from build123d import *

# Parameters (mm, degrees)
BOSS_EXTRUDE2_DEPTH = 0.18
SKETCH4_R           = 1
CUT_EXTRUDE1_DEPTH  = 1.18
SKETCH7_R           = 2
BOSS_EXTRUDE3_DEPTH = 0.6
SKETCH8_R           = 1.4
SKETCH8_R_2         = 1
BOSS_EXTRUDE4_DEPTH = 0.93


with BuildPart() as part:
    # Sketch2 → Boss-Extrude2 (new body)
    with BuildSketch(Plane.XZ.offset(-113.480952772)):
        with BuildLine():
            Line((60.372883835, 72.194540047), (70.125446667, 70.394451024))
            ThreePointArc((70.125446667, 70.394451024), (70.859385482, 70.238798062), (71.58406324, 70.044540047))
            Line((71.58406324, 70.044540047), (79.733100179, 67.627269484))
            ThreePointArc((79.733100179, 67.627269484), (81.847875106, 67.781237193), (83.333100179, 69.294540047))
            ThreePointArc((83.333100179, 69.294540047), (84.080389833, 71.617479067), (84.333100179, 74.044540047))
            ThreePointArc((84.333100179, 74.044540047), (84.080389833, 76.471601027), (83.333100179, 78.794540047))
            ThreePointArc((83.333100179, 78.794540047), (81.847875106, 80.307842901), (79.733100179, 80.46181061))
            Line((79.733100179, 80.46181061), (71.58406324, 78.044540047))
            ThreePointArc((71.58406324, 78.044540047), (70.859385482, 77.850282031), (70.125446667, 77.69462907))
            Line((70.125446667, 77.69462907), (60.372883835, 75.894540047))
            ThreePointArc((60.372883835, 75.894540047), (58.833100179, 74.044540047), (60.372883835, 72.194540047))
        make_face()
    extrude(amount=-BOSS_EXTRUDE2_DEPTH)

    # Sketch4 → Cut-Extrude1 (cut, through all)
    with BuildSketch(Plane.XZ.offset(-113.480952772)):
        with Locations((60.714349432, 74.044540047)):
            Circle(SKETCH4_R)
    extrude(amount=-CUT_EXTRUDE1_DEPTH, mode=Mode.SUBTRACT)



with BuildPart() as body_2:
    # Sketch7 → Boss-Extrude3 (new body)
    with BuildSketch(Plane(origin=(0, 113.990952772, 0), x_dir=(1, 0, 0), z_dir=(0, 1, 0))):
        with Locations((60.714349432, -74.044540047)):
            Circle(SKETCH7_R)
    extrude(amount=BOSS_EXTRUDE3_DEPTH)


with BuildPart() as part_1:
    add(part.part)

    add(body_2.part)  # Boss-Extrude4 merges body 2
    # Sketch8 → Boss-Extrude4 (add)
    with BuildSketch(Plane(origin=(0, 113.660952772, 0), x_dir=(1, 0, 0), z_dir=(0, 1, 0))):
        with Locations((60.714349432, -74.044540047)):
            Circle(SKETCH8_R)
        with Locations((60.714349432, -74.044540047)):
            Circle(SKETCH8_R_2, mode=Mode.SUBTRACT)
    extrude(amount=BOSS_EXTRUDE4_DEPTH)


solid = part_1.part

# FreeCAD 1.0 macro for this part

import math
import FreeCAD as App
import Part
import Sketcher

doc = App.newDocument("Part")
params = doc.addObject("Spreadsheet::Sheet", "Params")
for row, (alias, value) in enumerate([
    ("sketch1_length", "8.5 mm"),
    ("sketch1_length2", "8.5 mm"),
    ("pad1_length", "0.18 mm"),
    ("sketch2_diameter", "2 mm"),
    ("sketch3_diameter", "4 mm"),
    ("pad2_length", "0.6 mm"),
    ("sketch4_diameter", "2 mm"),
    ("sketch4_diameter2", "2.8 mm"),
    ("pad3_length", "0.93 mm"),
], start=1):
    params.set(f"A{row}", alias)
    params.set(f"B{row}", "=" + value)
    params.setAlias(f"B{row}", alias)

body = doc.addObject("PartDesign::Body", "Body")

# Sketch on XZ plane
sketch1 = body.newObject("Sketcher::SketchObject", "Sketch")
sketch1.AttachmentSupport = (doc.getObject("XZ_Plane"), [""])
sketch1.MapMode = "FlatFace"
sketch1.AttachmentOffset = App.Placement(App.Vector(0, 0, -113.480953), App.Rotation())
sketch1.addGeometry(Part.LineSegment(App.Vector(60.372884, 72.19454, 0), App.Vector(70.125447, 70.394451, 0)), False)
sketch1.addGeometry(Part.ArcOfCircle(Part.Circle(App.Vector(67.551894, 56.451402, 0), App.Vector(0, 0, 1), 14.178568), math.radians(73.477923), math.radians(79.542273)), False)
sketch1.addGeometry(Part.LineSegment(App.Vector(71.584063, 70.04454, 0), App.Vector(79.7331, 67.627269, 0)), False)
sketch1.addGeometry(Part.ArcOfCircle(Part.Circle(App.Vector(80.586607, 70.504589, 0), App.Vector(0, 0, 1), 3.00124), math.radians(-106.522077), math.radians(-23.777316)), False)
sketch1.addGeometry(Part.ArcOfCircle(Part.Circle(App.Vector(72.55185, 74.04454, 0), App.Vector(0, 0, 1), 11.78125), math.radians(-23.777316), math.radians(0)), False)
sketch1.addGeometry(Part.ArcOfCircle(Part.Circle(App.Vector(72.55185, 74.04454, 0), App.Vector(0, 0, 1), 11.78125), math.radians(0), math.radians(23.777316)), False)
sketch1.addGeometry(Part.ArcOfCircle(Part.Circle(App.Vector(80.586607, 77.584491, 0), App.Vector(0, 0, 1), 3.00124), math.radians(23.777316), math.radians(106.522077)), False)
sketch1.addGeometry(Part.LineSegment(App.Vector(79.7331, 80.461811, 0), App.Vector(71.584063, 78.04454, 0)), False)
sketch1.addGeometry(Part.ArcOfCircle(Part.Circle(App.Vector(67.551895, 91.637678, 0), App.Vector(0, 0, 1), 14.178567), math.radians(-79.542273), math.radians(-73.477923)), False)
sketch1.addGeometry(Part.LineSegment(App.Vector(70.125447, 77.694629, 0), App.Vector(60.372884, 75.89454, 0)), False)
sketch1.addGeometry(Part.ArcOfCircle(Part.Circle(App.Vector(60.714349, 74.04454, 0), App.Vector(0, 0, 1), 1.881249), math.radians(100.457727), math.radians(259.542273)), False)
sketch1.addConstraint(Sketcher.Constraint("Coincident", 0, 2, 1, 2))
sketch1.addConstraint(Sketcher.Constraint("Coincident", 1, 1, 2, 1))
sketch1.addConstraint(Sketcher.Constraint("Coincident", 2, 2, 3, 1))
sketch1.addConstraint(Sketcher.Constraint("Coincident", 3, 2, 4, 1))
sketch1.addConstraint(Sketcher.Constraint("Coincident", 4, 2, 5, 1))
sketch1.addConstraint(Sketcher.Constraint("Coincident", 5, 2, 6, 1))
sketch1.addConstraint(Sketcher.Constraint("Coincident", 6, 2, 7, 1))
sketch1.addConstraint(Sketcher.Constraint("Coincident", 7, 2, 8, 2))
sketch1.addConstraint(Sketcher.Constraint("Coincident", 8, 1, 9, 1))
sketch1.addConstraint(Sketcher.Constraint("Coincident", 9, 2, 10, 1))
sketch1.addConstraint(Sketcher.Constraint("Coincident", 10, 2, 0, 1))
sketch1.addConstraint(Sketcher.Constraint("Coincident", 5, 3, 4, 3))
sketch1.addConstraint(Sketcher.Constraint("DistanceY", 1, 1, 5, 3, 4.0))
sketch1.addConstraint(Sketcher.Constraint("DistanceY", 1, 1, 10, 3, 4.0))
sketch1.addConstraint(Sketcher.Constraint("DistanceX", 3, 2, 4, 2, 1.0))
sketch1.addConstraint(Sketcher.Constraint("DistanceX", 5, 2, 4, 2, 1.0))
sketch1.addConstraint(Sketcher.Constraint("DistanceY", 4, 3, 7, 2, 4.0))
sketch1.addConstraint(Sketcher.Constraint("Distance", 2, 8.5))
sketch1.addConstraint(Sketcher.Constraint("Distance", 7, 8.5))
sketch1.addConstraint(Sketcher.Constraint("DistanceX", 2, 2, 3, 2, 3.6))
sketch1.addConstraint(Sketcher.Constraint("DistanceY", 3, 2, 5, 2, 9.5))
sketch1.addConstraint(Sketcher.Constraint("DistanceX", 6, 2, 5, 2, 3.6))
sketch1.addConstraint(Sketcher.Constraint("DistanceY", 10, 2, 9, 2, 3.7))
sketch1.addConstraint(Sketcher.Constraint("Radius", 1, 14.178568))
sketch1.addConstraint(Sketcher.Constraint("Radius", 3, 3.00124))
sketch1.addConstraint(Sketcher.Constraint("Radius", 6, 3.00124))
sketch1.addConstraint(Sketcher.Constraint("Radius", 10, 1.881249))
sketch1.addConstraint(Sketcher.Constraint("DistanceY", 3, 2, 4, 2, 4.75))
sketch1.addConstraint(Sketcher.Constraint("DistanceY", 10, 3, 9, 2, 1.85))
sketch1.addConstraint(Sketcher.Constraint("Radius", 8, 14.178567))
sketch1.addConstraint(Sketcher.Constraint("Distance", 0, 9.917298))
sketch1.addConstraint(Sketcher.Constraint("Distance", 9, 9.917298))
sketch1.addConstraint(Sketcher.Constraint("DistanceY", -1, 1, 1, 3, 56.451402))
sketch1.addConstraint(Sketcher.Constraint("DistanceX", -1, 1, 2, 2, 79.7331))
sketch1.addConstraint(Sketcher.Constraint("DistanceY", 3, 3, 6, 3, 7.079902))
sketch1.addConstraint(Sketcher.Constraint("DistanceX", 10, 3, 4, 3, 11.837501))
sketch1.addConstraint(Sketcher.Constraint("DistanceY", -1, 1, 3, 3, 70.504589))
sketch1.addConstraint(Sketcher.Constraint("DistanceY", -1, 1, 4, 3, 74.04454))
sketch1.addConstraint(Sketcher.Constraint("DistanceY", -1, 1, 8, 1, 77.694629))
sketch1.setExpression("Constraints[17]", "Params.sketch1_length")
sketch1.setExpression("Constraints[18]", "Params.sketch1_length2")
pad1 = body.newObject("PartDesign::Pad", "Pad")
pad1.Profile = sketch1
pad1.setExpression("Length", "Params.pad1_length")
pad1.Reversed = True

# Sketch on XZ plane
sketch2 = body.newObject("Sketcher::SketchObject", "Sketch001")
sketch2.AttachmentSupport = (doc.getObject("XZ_Plane"), [""])
sketch2.MapMode = "FlatFace"
sketch2.AttachmentOffset = App.Placement(App.Vector(0, 0, -113.480953), App.Rotation())
sketch2.addGeometry(Part.Circle(App.Vector(60.7, 74, 0), App.Vector(0, 0, 1), 1), False)
sketch2.addConstraint(Sketcher.Constraint("Diameter", 0, 2.0))
sketch2.addConstraint(Sketcher.Constraint("DistanceX", -1, 1, 0, 3, 60.714349))
sketch2.addConstraint(Sketcher.Constraint("DistanceY", -1, 1, 0, 3, 74.04454))
sketch2.setExpression("Constraints[0]", "Params.sketch2_diameter")
pocket1 = body.newObject("PartDesign::Pocket", "Pocket")
pocket1.Profile = sketch2
pocket1.Type = "ThroughAll"
body2 = doc.addObject("PartDesign::Body", "Body001")

# Sketch on XZ plane
sketch3 = body2.newObject("Sketcher::SketchObject", "Sketch002")
sketch3.AttachmentSupport = (doc.getObject("XZ_Plane001"), [""])
sketch3.MapMode = "FlatFace"
sketch3.AttachmentOffset = App.Placement(App.Vector(0, 0, -113.990953), App.Rotation())
sketch3.addGeometry(Part.Circle(App.Vector(60.7, 74, 0), App.Vector(0, 0, 1), 2), False)
sketch3.addConstraint(Sketcher.Constraint("Diameter", 0, 4.0))
sketch3.addConstraint(Sketcher.Constraint("DistanceX", -1, 1, 0, 3, 60.714349))
sketch3.addConstraint(Sketcher.Constraint("DistanceY", -1, 1, 0, 3, 74.04454))
sketch3.setExpression("Constraints[0]", "Params.sketch3_diameter")
pad2 = body2.newObject("PartDesign::Pad", "Pad001")
pad2.Profile = sketch3
pad2.setExpression("Length", "Params.pad2_length")
pad2.Reversed = True
body.AllowCompound = True
doc.recompute()

boolean = body.newObject("PartDesign::Boolean", "Boolean")
boolean.Type = "Fuse"
boolean.addObjects([body2])

# Sketch on XZ plane
sketch4 = body.newObject("Sketcher::SketchObject", "Sketch003")
sketch4.AttachmentSupport = (doc.getObject("XZ_Plane"), [""])
sketch4.MapMode = "FlatFace"
sketch4.AttachmentOffset = App.Placement(App.Vector(0, 0, -113.660953), App.Rotation())
sketch4.addGeometry(Part.Circle(App.Vector(60.7, 74, 0), App.Vector(0, 0, 1), 1.4), False)
sketch4.addGeometry(Part.Circle(App.Vector(60.7, 74, 0), App.Vector(0, 0, 1), 1), False)
sketch4.addConstraint(Sketcher.Constraint("Coincident", 1, 3, 0, 3))
sketch4.addConstraint(Sketcher.Constraint("Diameter", 1, 2.0))
sketch4.addConstraint(Sketcher.Constraint("Diameter", 0, 2.8))
sketch4.addConstraint(Sketcher.Constraint("DistanceX", -1, 1, 0, 3, 60.714349))
sketch4.addConstraint(Sketcher.Constraint("DistanceY", -1, 1, 0, 3, 74.04454))
sketch4.setExpression("Constraints[1]", "Params.sketch4_diameter")
sketch4.setExpression("Constraints[2]", "Params.sketch4_diameter2")
pad3 = body.newObject("PartDesign::Pad", "Pad002")
pad3.Profile = sketch4
pad3.setExpression("Length", "Params.pad3_length")
pad3.Reversed = True

doc.recompute()
